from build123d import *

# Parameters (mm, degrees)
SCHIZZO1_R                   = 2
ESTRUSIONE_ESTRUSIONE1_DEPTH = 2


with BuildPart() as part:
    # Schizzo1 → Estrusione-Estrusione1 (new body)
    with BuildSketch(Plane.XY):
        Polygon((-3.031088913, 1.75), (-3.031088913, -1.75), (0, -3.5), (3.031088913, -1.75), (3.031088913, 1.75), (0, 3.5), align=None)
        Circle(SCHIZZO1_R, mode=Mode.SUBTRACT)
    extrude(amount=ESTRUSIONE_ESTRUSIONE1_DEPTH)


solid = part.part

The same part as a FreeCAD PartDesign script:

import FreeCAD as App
import Part
import Sketcher
from FreeCAD import Vector
Q = App.Units.Quantity

doc = App.newDocument("Part")
body = doc.addObject("PartDesign::Body", "Body")

sketch1 = body.newObject("Sketcher::SketchObject", "Sketch")
sketch1.AttachmentSupport = (doc.getObject("XY_Plane"), [""])
sketch1.MapMode = "FlatFace"
sketch1.addGeometry(Part.LineSegment(Vector(-3, 1.8, 0), Vector(-3, -1.8, 0)), False)
sketch1.addGeometry(Part.LineSegment(Vector(-3, -1.8, 0), Vector(0, -3.5, 0)), False)
sketch1.addGeometry(Part.LineSegment(Vector(0, -3.5, 0), Vector(3, -1.8, 0)), False)
sketch1.addGeometry(Part.LineSegment(Vector(3, -1.8, 0), Vector(3, 1.8, 0)), False)
sketch1.addGeometry(Part.LineSegment(Vector(3, 1.8, 0), Vector(0, 3.5, 0)), False)
sketch1.addGeometry(Part.LineSegment(Vector(0, 3.5, 0), Vector(-3, 1.8, 0)), False)
sketch1.addGeometry(Part.Circle(Vector(0, 0, 0), Vector(0, 0, 1), 2), False)
sketch1.addConstraint(Sketcher.Constraint("Coincident", 0, 2, 1, 1))
sketch1.addConstraint(Sketcher.Constraint("Coincident", 1, 2, 2, 1))
sketch1.addConstraint(Sketcher.Constraint("Coincident", 2, 2, 3, 1))
sketch1.addConstraint(Sketcher.Constraint("Coincident", 3, 2, 4, 1))
sketch1.addConstraint(Sketcher.Constraint("Coincident", 4, 2, 5, 1))
sketch1.addConstraint(Sketcher.Constraint("Coincident", 5, 2, 0, 1))
sketch1.addConstraint(Sketcher.Constraint("Vertical", 0))
sketch1.addConstraint(Sketcher.Constraint("Vertical", 3))
sketch1.addConstraint(Sketcher.Constraint("Coincident", 6, 3, -1, 1))
sketch1.addConstraint(Sketcher.Constraint("Symmetric", 0, 2, 3, 2, -1, 1))
sketch1.addConstraint(Sketcher.Constraint("Symmetric", 1, 2, 4, 2, -1, 1))
sketch1.addConstraint(Sketcher.Constraint("PointOnObject", 1, 2, -2))
sketch1.addConstraint(Sketcher.Constraint("Parallel", 2, 5))
sketch1.addConstraint(Sketcher.Constraint("Horizontal", 0, 2, 2, 2))
sketch1.addConstraint(Sketcher.Constraint("Diameter", 6, Q("4 mm")))
sketch1.addConstraint(Sketcher.Constraint("Angle", 1, Q("-30 deg")))
sketch1.addConstraint(Sketcher.Constraint("DistanceY", 0, 2, 0, 1, Q("3.5 mm")))
sketch1.addConstraint(Sketcher.Constraint("DistanceY", 1, 2, 4, 2, Q("7 mm")))
pad1 = body.newObject("PartDesign::Pad", "Pad")
pad1.Profile = sketch1
pad1.Length = 2

doc.recompute()
